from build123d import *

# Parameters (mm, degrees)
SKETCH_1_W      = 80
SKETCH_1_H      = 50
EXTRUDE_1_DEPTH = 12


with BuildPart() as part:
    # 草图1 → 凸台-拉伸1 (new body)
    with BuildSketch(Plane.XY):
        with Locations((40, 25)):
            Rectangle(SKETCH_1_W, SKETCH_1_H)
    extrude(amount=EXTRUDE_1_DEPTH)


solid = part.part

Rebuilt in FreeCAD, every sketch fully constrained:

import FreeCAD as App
import Part
import Sketcher

V = App.Vector
Q = App.Units.Quantity


def add_polygon(sketch, points):
    """Adds a closed chain of lines whose ends are joined by coincident constraints."""
    first, n = sketch.GeometryCount, len(points)
    for a, b in zip(points, points[1:] + points[:1]):
        sketch.addGeometry(Part.LineSegment(App.Vector(*a, 0), App.Vector(*b, 0)), False)
    for i in range(n):
        sketch.addConstraint(Sketcher.Constraint("Coincident", first + i, 2, first + (i + 1) % n, 1))

doc = App.newDocument("Part")
body = doc.addObject("PartDesign::Body", "Body")

# Sketch on XY plane
sketch1 = body.newObject("Sketcher::SketchObject", "Sketch")
sketch1.AttachmentSupport = (doc.getObject("XY_Plane"), [""])
sketch1.MapMode = "FlatFace"
add_polygon(sketch1, [(0, 50), (0, 0), (80, 0), (80, 50)])  # lines 0-3
sketch1.addConstraint([
    Sketcher.Constraint("Vertical", 0),
    Sketcher.Constraint("Horizontal", 1),
    Sketcher.Constraint("Vertical", 2),
    Sketcher.Constraint("Horizontal", 3),
    Sketcher.Constraint("Coincident", 0, 2, -1, 1),
    Sketcher.Constraint("DistanceX", 1, 1, 1, 2, Q("80 mm")),
    Sketcher.Constraint("DistanceY", 0, 2, 0, 1, Q("50 mm")),
])
pad1 = body.newObject("PartDesign::Pad", "Pad")
pad1.Profile = sketch1
pad1.Length = 12

doc.recompute()
